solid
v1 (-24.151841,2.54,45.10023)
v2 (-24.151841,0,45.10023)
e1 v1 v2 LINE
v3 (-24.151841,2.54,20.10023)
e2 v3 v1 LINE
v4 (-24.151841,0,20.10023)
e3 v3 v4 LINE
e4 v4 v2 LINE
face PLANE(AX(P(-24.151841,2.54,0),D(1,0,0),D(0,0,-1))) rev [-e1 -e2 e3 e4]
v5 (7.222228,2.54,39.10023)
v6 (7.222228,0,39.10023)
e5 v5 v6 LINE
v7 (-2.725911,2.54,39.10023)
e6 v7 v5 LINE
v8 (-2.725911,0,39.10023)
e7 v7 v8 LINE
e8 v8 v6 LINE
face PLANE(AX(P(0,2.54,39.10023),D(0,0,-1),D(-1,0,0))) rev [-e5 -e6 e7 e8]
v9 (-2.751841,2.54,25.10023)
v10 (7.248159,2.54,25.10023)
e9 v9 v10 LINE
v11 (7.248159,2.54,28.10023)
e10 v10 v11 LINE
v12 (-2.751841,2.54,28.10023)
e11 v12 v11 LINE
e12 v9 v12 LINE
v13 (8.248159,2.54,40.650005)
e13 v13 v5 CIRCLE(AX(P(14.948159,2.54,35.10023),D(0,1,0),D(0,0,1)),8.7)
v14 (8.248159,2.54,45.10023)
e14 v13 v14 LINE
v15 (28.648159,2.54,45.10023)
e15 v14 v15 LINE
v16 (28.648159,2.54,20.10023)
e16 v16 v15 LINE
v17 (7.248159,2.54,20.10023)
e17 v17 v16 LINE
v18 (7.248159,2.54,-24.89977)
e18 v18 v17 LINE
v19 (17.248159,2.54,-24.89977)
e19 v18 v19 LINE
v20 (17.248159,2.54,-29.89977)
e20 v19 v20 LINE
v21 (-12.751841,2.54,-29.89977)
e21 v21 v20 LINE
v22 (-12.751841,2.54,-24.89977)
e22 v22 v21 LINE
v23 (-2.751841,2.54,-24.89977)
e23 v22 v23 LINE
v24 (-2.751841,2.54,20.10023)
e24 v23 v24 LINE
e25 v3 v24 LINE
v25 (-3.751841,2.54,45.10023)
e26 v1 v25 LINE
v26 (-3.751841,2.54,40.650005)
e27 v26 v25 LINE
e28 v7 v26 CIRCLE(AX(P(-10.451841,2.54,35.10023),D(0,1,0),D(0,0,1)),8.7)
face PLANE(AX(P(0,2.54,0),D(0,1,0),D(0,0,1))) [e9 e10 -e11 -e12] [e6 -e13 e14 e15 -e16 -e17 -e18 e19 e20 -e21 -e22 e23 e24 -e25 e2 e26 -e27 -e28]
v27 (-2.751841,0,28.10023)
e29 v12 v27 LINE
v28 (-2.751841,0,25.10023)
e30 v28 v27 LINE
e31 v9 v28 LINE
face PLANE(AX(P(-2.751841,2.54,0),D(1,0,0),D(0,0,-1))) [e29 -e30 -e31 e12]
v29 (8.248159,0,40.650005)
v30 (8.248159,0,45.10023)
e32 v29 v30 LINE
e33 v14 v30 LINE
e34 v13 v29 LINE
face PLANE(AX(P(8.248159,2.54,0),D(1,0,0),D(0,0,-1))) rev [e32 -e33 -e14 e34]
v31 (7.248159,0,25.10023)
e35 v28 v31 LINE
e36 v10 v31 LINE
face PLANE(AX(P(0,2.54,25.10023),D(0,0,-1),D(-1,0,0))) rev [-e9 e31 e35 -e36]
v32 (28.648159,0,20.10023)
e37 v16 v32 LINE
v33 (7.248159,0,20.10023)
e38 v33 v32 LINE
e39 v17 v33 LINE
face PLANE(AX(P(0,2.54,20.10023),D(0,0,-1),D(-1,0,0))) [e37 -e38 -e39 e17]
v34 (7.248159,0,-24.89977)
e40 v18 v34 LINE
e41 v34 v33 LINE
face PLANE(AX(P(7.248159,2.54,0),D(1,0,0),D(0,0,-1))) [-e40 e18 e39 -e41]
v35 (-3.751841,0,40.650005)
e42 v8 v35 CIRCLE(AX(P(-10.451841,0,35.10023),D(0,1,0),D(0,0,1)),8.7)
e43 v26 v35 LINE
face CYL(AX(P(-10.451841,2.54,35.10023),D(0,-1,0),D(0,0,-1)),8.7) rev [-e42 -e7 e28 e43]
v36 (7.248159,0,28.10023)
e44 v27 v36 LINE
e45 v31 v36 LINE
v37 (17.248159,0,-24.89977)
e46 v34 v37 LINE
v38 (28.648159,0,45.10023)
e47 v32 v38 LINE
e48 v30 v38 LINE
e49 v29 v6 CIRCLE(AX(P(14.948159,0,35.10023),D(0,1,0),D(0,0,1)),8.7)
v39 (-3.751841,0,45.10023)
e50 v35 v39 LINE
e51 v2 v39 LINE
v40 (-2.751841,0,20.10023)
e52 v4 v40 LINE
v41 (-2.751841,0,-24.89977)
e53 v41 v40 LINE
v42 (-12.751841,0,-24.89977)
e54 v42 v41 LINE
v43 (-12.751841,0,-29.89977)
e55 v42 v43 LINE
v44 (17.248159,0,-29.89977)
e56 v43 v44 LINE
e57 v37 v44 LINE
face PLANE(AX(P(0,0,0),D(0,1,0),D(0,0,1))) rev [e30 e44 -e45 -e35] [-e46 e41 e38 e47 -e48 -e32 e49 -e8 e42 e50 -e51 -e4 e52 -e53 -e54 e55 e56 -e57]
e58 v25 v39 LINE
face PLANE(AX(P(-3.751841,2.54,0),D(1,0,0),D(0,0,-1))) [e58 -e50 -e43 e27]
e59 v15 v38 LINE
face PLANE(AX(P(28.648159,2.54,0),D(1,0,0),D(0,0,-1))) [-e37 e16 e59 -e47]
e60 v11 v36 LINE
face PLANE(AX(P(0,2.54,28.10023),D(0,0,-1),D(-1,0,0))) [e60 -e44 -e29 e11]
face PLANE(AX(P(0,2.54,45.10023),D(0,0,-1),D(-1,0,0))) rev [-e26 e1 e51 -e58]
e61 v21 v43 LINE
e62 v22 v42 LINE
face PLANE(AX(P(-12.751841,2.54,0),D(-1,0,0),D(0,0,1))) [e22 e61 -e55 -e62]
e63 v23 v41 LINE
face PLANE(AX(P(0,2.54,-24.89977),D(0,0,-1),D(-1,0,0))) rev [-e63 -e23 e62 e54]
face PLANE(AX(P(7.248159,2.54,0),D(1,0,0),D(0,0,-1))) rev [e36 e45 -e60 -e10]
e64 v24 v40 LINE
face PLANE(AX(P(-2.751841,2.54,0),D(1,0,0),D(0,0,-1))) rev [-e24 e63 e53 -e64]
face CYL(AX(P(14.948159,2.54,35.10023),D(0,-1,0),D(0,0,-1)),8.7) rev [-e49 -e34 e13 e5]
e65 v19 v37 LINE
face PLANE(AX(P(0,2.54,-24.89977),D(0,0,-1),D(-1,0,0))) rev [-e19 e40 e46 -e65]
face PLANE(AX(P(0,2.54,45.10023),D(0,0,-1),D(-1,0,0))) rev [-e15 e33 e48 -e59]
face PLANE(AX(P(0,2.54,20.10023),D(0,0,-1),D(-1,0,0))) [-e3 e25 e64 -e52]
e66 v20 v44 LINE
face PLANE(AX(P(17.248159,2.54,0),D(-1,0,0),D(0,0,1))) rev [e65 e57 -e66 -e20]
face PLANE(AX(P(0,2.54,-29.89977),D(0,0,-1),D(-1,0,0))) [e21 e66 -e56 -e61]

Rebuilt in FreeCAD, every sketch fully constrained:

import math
import FreeCAD as App
import Part
import Sketcher
from FreeCAD import Vector


def add_polygon(sketch, points):
    """Adds a closed chain of lines whose ends are joined by coincident constraints."""
    first, n = sketch.GeometryCount, len(points)
    for a, b in zip(points, points[1:] + points[:1]):
        sketch.addGeometry(Part.LineSegment(App.Vector(*a, 0), App.Vector(*b, 0)), False)
    for i in range(n):
        sketch.addConstraint(Sketcher.Constraint("Coincident", first + i, 2, first + (i + 1) % n, 1))

doc = App.newDocument("Part")
body = doc.addObject("PartDesign::Body", "Body")

sketch1 = body.newObject("Sketcher::SketchObject", "Sketch")
sketch1.AttachmentSupport = (doc.getObject("XZ_Plane"), [""])
sketch1.MapMode = "FlatFace"
sketch1.addGeometry(Part.LineSegment(Vector(-12.751841, -24.89977, 0), Vector(-2.751841, -24.89977, 0)), False)
sketch1.addGeometry(Part.LineSegment(Vector(-2.751841, -24.89977, 0), Vector(-2.751841, 20.10023, 0)), False)
sketch1.addGeometry(Part.LineSegment(Vector(-2.751841, 20.10023, 0), Vector(-24.151841, 20.10023, 0)), False)
sketch1.addGeometry(Part.LineSegment(Vector(-24.151841, 20.10023, 0), Vector(-24.151841, 45.10023, 0)), False)
sketch1.addGeometry(Part.LineSegment(Vector(-24.151841, 45.10023, 0), Vector(-3.751841, 45.10023, 0)), False)
sketch1.addGeometry(Part.LineSegment(Vector(-3.751841, 45.10023, 0), Vector(-3.751841, 40.650005, 0)), False)
sketch1.addGeometry(Part.ArcOfCircle(Part.Circle(Vector(-10.451841, 35.10023, 0), Vector(0, 0, 1), 8.7), math.radians(39.635788), math.radians(387.372274)), False)
sketch1.addGeometry(Part.LineSegment(Vector(-2.725911, 39.10023, 0), Vector(7.222228, 39.10023, 0)), False)
sketch1.addGeometry(Part.ArcOfCircle(Part.Circle(Vector(14.948159, 35.10023, 0), Vector(0, 0, 1), 8.7), math.radians(152.627726), math.radians(500.364212)), False)
sketch1.addGeometry(Part.LineSegment(Vector(8.248159, 40.650005, 0), Vector(8.248159, 45.10023, 0)), False)
sketch1.addGeometry(Part.LineSegment(Vector(8.248159, 45.10023, 0), Vector(28.648159, 45.10023, 0)), False)
sketch1.addGeometry(Part.LineSegment(Vector(28.648159, 45.10023, 0), Vector(28.648159, 20.10023, 0)), False)
sketch1.addGeometry(Part.LineSegment(Vector(28.648159, 20.10023, 0), Vector(7.248159, 20.10023, 0)), False)
sketch1.addGeometry(Part.LineSegment(Vector(7.248159, 20.10023, 0), Vector(7.248159, -24.89977, 0)), False)
sketch1.addGeometry(Part.LineSegment(Vector(7.248159, -24.89977, 0), Vector(17.248159, -24.89977, 0)), False)
sketch1.addGeometry(Part.LineSegment(Vector(17.248159, -24.89977, 0), Vector(17.248159, -29.89977, 0)), False)
sketch1.addGeometry(Part.LineSegment(Vector(17.248159, -29.89977, 0), Vector(-12.751841, -29.89977, 0)), False)
sketch1.addGeometry(Part.LineSegment(Vector(-12.751841, -29.89977, 0), Vector(-12.751841, -24.89977, 0)), False)
add_polygon(sketch1, [(7.248159, 28.10023), (-2.751841, 28.10023), (-2.751841, 25.10023), (7.248159, 25.10023)])
sketch1.addConstraint(Sketcher.Constraint("Coincident", 0, 2, 1, 1))
sketch1.addConstraint(Sketcher.Constraint("Coincident", 1, 2, 2, 1))
sketch1.addConstraint(Sketcher.Constraint("Coincident", 2, 2, 3, 1))
sketch1.addConstraint(Sketcher.Constraint("Coincident", 3, 2, 4, 1))
sketch1.addConstraint(Sketcher.Constraint("Coincident", 4, 2, 5, 1))
sketch1.addConstraint(Sketcher.Constraint("Coincident", 5, 2, 6, 1))
sketch1.addConstraint(Sketcher.Constraint("Coincident", 6, 2, 7, 1))
sketch1.addConstraint(Sketcher.Constraint("Coincident", 7, 2, 8, 1))
sketch1.addConstraint(Sketcher.Constraint("Coincident", 8, 2, 9, 1))
sketch1.addConstraint(Sketcher.Constraint("Coincident", 9, 2, 10, 1))
sketch1.addConstraint(Sketcher.Constraint("Coincident", 10, 2, 11, 1))
sketch1.addConstraint(Sketcher.Constraint("Coincident", 11, 2, 12, 1))
sketch1.addConstraint(Sketcher.Constraint("Coincident", 12, 2, 13, 1))
sketch1.addConstraint(Sketcher.Constraint("Coincident", 13, 2, 14, 1))
sketch1.addConstraint(Sketcher.Constraint("Coincident", 14, 2, 15, 1))
sketch1.addConstraint(Sketcher.Constraint("Coincident", 15, 2, 16, 1))
sketch1.addConstraint(Sketcher.Constraint("Coincident", 16, 2, 17, 1))
sketch1.addConstraint(Sketcher.Constraint("Coincident", 17, 2, 0, 1))
sketch1.addConstraint(Sketcher.Constraint("Horizontal", 0))
sketch1.addConstraint(Sketcher.Constraint("Vertical", 1))
sketch1.addConstraint(Sketcher.Constraint("Horizontal", 2))
sketch1.addConstraint(Sketcher.Constraint("Vertical", 3))
sketch1.addConstraint(Sketcher.Constraint("Horizontal", 4))
sketch1.addConstraint(Sketcher.Constraint("Vertical", 5))
sketch1.addConstraint(Sketcher.Constraint("Horizontal", 7))
sketch1.addConstraint(Sketcher.Constraint("Vertical", 9))
sketch1.addConstraint(Sketcher.Constraint("Horizontal", 10))
sketch1.addConstraint(Sketcher.Constraint("Vertical", 11))
sketch1.addConstraint(Sketcher.Constraint("Horizontal", 12))
sketch1.addConstraint(Sketcher.Constraint("Vertical", 13))
sketch1.addConstraint(Sketcher.Constraint("Horizontal", 14))
sketch1.addConstraint(Sketcher.Constraint("Vertical", 15))
sketch1.addConstraint(Sketcher.Constraint("Horizontal", 16))
sketch1.addConstraint(Sketcher.Constraint("Vertical", 17))
sketch1.addConstraint(Sketcher.Constraint("Horizontal", 18))
sketch1.addConstraint(Sketcher.Constraint("Vertical", 19))
sketch1.addConstraint(Sketcher.Constraint("Horizontal", 20))
sketch1.addConstraint(Sketcher.Constraint("Vertical", 21))
sketch1.addConstraint(Sketcher.Constraint("Equal", 6, 8))
sketch1.addConstraint(Sketcher.Constraint("Horizontal", 6, 3, 8, 3))
sketch1.addConstraint(Sketcher.Constraint("Horizontal", 5, 2, 8, 2))
sketch1.addConstraint(Sketcher.Constraint("Horizontal", 4, 2, 9, 2))
sketch1.addConstraint(Sketcher.Constraint("Horizontal", 2, 2, 11, 2))
sketch1.addConstraint(Sketcher.Constraint("Horizontal", 0, 2, 13, 2))
sketch1.addConstraint(Sketcher.Constraint("Vertical", 1, 2, 18, 2))
sketch1.addConstraint(Sketcher.Constraint("Vertical", 13, 2, 20, 2))
sketch1.addConstraint(Sketcher.Constraint("Equal", 4, 10))
sketch1.addConstraint(Sketcher.Constraint("Equal", 2, 12))
sketch1.addConstraint(Sketcher.Constraint("Equal", 0, 14))
sketch1.addConstraint(Sketcher.Constraint("Equal", 14, 18))
sketch1.addConstraint(Sketcher.Constraint("Radius", 6, 8.7))
sketch1.addConstraint(Sketcher.Constraint("DistanceX", 0, 1, 0, 2, 10.0))
sketch1.addConstraint(Sketcher.Constraint("DistanceY", 1, 1, 1, 2, 45.0))
sketch1.addConstraint(Sketcher.Constraint("DistanceY", 3, 1, 3, 2, 25.0))
sketch1.addConstraint(Sketcher.Constraint("DistanceY", 15, 2, 15, 1, 5.0))
sketch1.addConstraint(Sketcher.Constraint("DistanceY", 19, 2, 19, 1, 3.0))
sketch1.addConstraint(Sketcher.Constraint("DistanceX", 2, 2, 2, 1, 21.4))
sketch1.addConstraint(Sketcher.Constraint("DistanceX", 4, 1, 4, 2, 20.4))
sketch1.addConstraint(Sketcher.Constraint("DistanceY", 0, 2, 6, 3, 60.0))
sketch1.addConstraint(Sketcher.Constraint("DistanceY", 6, 2, 4, 2, 6.0))
sketch1.addConstraint(Sketcher.Constraint("DistanceY", 1, 2, 18, 2, 8.0))
sketch1.addConstraint(Sketcher.Constraint("DistanceX", 6, 3, 8, 3, 25.4))
sketch1.addConstraint(Sketcher.Constraint("DistanceX", 6, 3, -1, 1, 10.451841))
sketch1.addConstraint(Sketcher.Constraint("DistanceY", -1, 1, 6, 3, 35.10023))
pad1 = body.newObject("PartDesign::Pad", "Pad")
pad1.Profile = sketch1
pad1.Length = 2.54
pad1.Reversed = True

doc.recompute()
